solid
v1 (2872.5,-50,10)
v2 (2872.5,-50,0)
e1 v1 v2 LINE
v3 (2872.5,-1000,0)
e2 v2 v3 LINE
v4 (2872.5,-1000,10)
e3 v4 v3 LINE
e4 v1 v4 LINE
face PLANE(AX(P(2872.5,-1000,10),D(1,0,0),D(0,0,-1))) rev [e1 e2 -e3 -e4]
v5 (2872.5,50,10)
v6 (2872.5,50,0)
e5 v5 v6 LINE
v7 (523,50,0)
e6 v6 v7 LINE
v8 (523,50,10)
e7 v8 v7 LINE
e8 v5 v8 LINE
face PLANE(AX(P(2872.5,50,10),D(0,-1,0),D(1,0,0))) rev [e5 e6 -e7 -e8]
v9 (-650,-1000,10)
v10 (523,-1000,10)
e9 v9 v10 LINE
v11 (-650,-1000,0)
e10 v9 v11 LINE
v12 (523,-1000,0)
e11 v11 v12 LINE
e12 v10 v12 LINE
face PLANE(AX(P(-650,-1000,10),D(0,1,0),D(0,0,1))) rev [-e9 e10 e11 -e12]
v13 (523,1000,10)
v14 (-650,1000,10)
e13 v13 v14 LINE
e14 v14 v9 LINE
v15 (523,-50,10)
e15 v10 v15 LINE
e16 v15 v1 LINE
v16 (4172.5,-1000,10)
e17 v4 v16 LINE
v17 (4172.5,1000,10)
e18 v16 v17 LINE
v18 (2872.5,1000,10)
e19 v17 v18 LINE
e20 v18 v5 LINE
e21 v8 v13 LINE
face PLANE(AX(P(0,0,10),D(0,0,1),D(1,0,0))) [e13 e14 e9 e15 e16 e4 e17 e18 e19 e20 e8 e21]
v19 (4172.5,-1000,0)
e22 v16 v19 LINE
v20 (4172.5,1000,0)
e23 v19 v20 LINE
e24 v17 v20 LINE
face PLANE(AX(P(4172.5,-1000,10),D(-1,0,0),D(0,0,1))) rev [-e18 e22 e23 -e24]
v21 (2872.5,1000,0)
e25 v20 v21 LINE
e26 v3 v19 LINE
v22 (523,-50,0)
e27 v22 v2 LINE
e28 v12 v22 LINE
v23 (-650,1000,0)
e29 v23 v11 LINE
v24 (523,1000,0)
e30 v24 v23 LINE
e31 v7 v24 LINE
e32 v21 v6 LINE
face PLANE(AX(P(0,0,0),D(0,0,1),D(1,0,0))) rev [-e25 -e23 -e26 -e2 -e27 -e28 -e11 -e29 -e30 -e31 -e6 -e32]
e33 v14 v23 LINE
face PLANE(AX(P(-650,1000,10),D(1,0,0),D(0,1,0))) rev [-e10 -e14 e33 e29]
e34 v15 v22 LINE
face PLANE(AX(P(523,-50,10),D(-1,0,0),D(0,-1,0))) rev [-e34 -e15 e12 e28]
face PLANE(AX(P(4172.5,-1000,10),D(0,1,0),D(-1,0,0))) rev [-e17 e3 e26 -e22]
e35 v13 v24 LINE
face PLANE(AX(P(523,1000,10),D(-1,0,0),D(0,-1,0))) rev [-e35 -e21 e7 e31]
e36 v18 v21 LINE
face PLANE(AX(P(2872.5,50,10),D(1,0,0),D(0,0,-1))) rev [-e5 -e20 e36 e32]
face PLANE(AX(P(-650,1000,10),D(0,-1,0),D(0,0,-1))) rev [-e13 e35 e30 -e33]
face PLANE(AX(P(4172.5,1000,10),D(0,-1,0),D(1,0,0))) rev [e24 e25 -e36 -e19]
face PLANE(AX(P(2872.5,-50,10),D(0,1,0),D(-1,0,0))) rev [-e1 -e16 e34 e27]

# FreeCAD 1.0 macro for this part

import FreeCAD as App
import Part
import Sketcher
from FreeCAD import Vector


def add_polygon(sketch, points):
    """Adds a closed chain of lines whose ends are joined by coincident constraints."""
    first, n = sketch.GeometryCount, len(points)
    for a, b in zip(points, points[1:] + points[:1]):
        sketch.addGeometry(Part.LineSegment(App.Vector(*a, 0), App.Vector(*b, 0)), False)
    for i in range(n):
        sketch.addConstraint(Sketcher.Constraint("Coincident", first + i, 2, first + (i + 1) % n, 1))

doc = App.newDocument("Part")
body = doc.addObject("PartDesign::Body", "Body")

sketch1 = body.newObject("Sketcher::SketchObject", "Sketch")
sketch1.AttachmentSupport = (doc.getObject("XY_Plane"), [""])
sketch1.MapMode = "FlatFace"
add_polygon(sketch1, [(523, 1000), (-650, 1000), (-650, -1000), (523, -1000), (523, -50), (2872, -50), (2872, -1000), (4172, -1000), (4172, 1000), (2872, 1000), (2872, 50), (523, 50)])
sketch1.addConstraint([
    Sketcher.Constraint("Horizontal", 0),
    Sketcher.Constraint("Vertical", 1),
    Sketcher.Constraint("Horizontal", 2),
    Sketcher.Constraint("Vertical", 3),
    Sketcher.Constraint("Horizontal", 4),
    Sketcher.Constraint("Vertical", 5),
    Sketcher.Constraint("Horizontal", 6),
    Sketcher.Constraint("Vertical", 7),
    Sketcher.Constraint("Horizontal", 8),
    Sketcher.Constraint("Vertical", 9),
    Sketcher.Constraint("Horizontal", 10),
    Sketcher.Constraint("Vertical", 11),
    Sketcher.Constraint("Symmetric", 5, 2, 8, 2, -1),
    Sketcher.Constraint("Symmetric", 3, 2, 10, 2, -1),
    Sketcher.Constraint("Horizontal", 2, 2, 5, 2),
    Sketcher.Constraint("Horizontal", 0, 2, 7, 2),
    Sketcher.Constraint("DistanceX", 0, 2, 0, 1, 1173.0),
    Sketcher.Constraint("DistanceX", 6, 1, 6, 2, 1300.0),
    Sketcher.Constraint("DistanceY", 1, 2, 1, 1, 2000.0),
    Sketcher.Constraint("DistanceY", 3, 1, 3, 2, 950.0),
    Sketcher.Constraint("DistanceX", 4, 1, 4, 2, 2349.5),
    Sketcher.Constraint("DistanceX", 0, 2, -1, 1, 650.0),
])
pad1 = body.newObject("PartDesign::Pad", "Pad")
pad1.Profile = sketch1
pad1.Length = 10

doc.recompute()
